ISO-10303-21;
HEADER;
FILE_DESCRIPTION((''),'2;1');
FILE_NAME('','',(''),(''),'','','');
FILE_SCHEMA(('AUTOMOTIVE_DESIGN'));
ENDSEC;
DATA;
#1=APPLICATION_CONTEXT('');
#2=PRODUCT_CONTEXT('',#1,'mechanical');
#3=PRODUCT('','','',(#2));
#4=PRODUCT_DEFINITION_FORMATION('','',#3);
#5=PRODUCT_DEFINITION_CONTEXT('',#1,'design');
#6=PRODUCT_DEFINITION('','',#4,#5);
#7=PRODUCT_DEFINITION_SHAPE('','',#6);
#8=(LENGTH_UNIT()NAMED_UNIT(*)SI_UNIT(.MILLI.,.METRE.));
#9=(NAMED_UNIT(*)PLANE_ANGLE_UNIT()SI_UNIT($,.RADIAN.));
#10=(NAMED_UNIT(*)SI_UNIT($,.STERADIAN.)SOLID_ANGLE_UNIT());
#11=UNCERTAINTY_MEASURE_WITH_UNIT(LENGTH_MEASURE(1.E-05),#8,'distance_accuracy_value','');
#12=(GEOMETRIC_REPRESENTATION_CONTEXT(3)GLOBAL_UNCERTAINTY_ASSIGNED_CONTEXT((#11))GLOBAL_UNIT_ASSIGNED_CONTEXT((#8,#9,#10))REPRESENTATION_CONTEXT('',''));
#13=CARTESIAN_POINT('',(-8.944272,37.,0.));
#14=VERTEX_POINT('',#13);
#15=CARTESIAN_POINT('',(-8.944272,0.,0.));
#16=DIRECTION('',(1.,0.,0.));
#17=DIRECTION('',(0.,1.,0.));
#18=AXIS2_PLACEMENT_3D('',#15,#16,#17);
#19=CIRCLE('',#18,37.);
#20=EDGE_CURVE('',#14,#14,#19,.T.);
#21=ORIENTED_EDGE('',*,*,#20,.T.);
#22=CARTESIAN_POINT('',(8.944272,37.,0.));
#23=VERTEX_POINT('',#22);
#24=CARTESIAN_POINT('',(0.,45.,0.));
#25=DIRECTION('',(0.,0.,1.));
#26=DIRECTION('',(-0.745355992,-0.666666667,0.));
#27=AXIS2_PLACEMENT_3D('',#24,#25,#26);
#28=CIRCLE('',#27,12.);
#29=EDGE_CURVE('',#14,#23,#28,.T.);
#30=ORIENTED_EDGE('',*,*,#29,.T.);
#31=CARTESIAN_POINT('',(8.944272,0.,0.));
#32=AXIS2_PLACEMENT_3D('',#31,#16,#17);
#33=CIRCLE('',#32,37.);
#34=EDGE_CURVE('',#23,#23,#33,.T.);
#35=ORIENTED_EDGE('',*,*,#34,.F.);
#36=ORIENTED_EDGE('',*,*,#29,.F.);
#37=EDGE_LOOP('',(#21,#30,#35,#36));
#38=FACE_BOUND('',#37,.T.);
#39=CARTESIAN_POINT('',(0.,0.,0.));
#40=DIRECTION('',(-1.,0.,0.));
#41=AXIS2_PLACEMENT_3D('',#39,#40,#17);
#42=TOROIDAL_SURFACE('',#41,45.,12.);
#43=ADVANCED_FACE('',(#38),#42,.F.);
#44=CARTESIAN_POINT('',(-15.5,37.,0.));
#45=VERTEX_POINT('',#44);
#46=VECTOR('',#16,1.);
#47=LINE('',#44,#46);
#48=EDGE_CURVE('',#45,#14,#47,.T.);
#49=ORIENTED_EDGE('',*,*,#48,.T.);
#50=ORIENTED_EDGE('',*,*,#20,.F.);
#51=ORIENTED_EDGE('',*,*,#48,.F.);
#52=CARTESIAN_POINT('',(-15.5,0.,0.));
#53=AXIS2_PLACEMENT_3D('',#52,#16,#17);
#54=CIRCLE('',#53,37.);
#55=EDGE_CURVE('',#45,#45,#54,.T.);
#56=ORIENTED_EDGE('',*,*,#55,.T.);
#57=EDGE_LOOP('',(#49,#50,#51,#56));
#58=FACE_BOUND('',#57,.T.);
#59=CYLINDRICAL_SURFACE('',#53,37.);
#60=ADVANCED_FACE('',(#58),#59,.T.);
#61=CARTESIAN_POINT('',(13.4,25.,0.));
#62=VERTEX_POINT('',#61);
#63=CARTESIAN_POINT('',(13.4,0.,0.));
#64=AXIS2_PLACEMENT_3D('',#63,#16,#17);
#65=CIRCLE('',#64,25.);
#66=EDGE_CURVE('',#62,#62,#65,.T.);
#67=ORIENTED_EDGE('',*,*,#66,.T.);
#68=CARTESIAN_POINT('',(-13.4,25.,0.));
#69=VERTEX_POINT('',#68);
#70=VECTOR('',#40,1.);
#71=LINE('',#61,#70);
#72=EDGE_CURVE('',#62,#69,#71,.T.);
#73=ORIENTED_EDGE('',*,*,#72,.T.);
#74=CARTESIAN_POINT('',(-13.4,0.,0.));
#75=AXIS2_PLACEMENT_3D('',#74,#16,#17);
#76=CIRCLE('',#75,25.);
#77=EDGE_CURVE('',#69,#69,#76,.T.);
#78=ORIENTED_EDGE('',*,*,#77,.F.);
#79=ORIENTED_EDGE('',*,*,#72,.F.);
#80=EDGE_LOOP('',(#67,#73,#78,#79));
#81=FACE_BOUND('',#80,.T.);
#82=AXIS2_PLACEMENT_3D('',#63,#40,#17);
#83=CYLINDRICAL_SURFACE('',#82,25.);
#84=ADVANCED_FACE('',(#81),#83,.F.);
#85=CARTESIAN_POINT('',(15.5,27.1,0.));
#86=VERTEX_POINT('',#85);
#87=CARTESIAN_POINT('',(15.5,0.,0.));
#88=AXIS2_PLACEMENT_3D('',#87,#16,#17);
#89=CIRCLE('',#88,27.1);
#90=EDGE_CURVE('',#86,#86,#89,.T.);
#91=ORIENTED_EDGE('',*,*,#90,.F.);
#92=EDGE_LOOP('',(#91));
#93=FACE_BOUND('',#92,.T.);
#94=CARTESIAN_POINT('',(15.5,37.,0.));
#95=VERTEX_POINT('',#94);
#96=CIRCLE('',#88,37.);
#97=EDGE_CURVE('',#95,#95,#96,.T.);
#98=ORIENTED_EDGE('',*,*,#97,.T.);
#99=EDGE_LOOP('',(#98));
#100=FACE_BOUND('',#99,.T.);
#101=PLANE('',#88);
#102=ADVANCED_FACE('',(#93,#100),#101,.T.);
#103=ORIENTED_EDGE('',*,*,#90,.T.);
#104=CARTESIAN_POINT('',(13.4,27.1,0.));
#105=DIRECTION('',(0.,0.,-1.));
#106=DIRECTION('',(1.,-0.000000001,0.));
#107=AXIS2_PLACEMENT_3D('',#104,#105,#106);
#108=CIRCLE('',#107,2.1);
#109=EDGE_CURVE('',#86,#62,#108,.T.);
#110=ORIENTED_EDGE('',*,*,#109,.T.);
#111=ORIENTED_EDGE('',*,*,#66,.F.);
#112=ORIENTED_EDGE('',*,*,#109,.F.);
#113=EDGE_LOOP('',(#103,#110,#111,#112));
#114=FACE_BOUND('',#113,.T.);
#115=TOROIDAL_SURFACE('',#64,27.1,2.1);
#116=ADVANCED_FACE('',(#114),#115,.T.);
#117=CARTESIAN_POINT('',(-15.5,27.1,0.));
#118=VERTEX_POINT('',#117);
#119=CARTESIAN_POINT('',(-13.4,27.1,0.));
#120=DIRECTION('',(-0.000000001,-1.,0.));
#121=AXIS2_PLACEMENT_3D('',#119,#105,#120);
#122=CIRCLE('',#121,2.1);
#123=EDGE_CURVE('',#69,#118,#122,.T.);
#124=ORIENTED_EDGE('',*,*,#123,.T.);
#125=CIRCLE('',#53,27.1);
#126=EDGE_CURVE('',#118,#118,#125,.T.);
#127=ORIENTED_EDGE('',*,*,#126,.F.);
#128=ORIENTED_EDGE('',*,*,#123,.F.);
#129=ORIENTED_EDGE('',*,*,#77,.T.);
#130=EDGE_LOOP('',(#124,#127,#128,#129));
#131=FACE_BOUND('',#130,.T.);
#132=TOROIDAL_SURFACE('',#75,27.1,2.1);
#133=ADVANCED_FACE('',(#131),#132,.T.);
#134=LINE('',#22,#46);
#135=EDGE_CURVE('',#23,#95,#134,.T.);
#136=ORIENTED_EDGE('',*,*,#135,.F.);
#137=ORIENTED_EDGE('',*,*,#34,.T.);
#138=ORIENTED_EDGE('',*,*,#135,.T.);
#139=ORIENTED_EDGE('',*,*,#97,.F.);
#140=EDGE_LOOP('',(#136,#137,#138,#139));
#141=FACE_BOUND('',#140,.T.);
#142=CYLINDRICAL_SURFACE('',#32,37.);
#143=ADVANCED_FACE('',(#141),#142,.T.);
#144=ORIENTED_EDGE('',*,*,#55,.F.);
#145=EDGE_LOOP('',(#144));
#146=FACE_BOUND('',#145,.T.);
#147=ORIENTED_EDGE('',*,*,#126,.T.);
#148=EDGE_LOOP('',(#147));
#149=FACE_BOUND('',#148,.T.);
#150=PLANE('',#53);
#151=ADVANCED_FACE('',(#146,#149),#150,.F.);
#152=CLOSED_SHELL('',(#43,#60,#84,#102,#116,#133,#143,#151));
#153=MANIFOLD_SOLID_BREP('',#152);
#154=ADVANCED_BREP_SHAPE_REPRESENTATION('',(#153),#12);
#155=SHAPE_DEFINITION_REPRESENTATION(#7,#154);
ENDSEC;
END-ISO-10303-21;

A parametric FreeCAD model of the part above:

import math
import FreeCAD as App
import Part
import Sketcher
from FreeCAD import Vector
Q = App.Units.Quantity

doc = App.newDocument("Part")
body = doc.addObject("PartDesign::Body", "Body")

# Sketch on XY plane
sketch1 = doc.addObject("Sketcher::SketchObject", "Sketch")
body.addObject(sketch1)
sketch1.AttachmentSupport = (doc.XY_Plane, [""])
sketch1.MapMode = "FlatFace"
sketch1.addGeometry([
    Part.LineSegment(Vector(-8.9, 37, 0), Vector(-15.5, 37, 0)),  # 0
    Part.LineSegment(Vector(-15.5, 37, 0), Vector(-15.5, 27.1, 0)),  # 1
    Part.ArcOfCircle(Part.Circle(Vector(-13.4, 27.1, 0), Vector(0, 0, 1), 2.1), math.radians(-180), math.radians(-90)),  # 2
    Part.LineSegment(Vector(-13.4, 25, 0), Vector(13.4, 25, 0)),  # 3
    Part.ArcOfCircle(Part.Circle(Vector(13.4, 27.1, 0), Vector(0, 0, 1), 2.1), math.radians(-90), math.radians(0)),  # 4
    Part.LineSegment(Vector(15.5, 27.1, 0), Vector(15.5, 37, 0)),  # 5
    Part.LineSegment(Vector(15.5, 37, 0), Vector(8.9, 37, 0)),  # 6
    Part.ArcOfCircle(Part.Circle(Vector(0, 45, 0), Vector(0, 0, 1), 12), math.radians(-138), math.radians(-42)),  # 7
], False)
sketch1.addConstraint([
    Sketcher.Constraint("Coincident", 0, 2, 1, 1),
    Sketcher.Constraint("Tangent", 1, 2, 2, 1),
    Sketcher.Constraint("Tangent", 2, 2, 3, 1),
    Sketcher.Constraint("Tangent", 3, 2, 4, 1),
    Sketcher.Constraint("Tangent", 4, 2, 5, 1),
    Sketcher.Constraint("Coincident", 5, 2, 6, 1),
    Sketcher.Constraint("Coincident", 6, 2, 7, 2),
    Sketcher.Constraint("Coincident", 7, 1, 0, 1),
    Sketcher.Constraint("Horizontal", 0),
    Sketcher.Constraint("Vertical", 1),
    Sketcher.Constraint("Horizontal", 3),
    Sketcher.Constraint("Vertical", 5),
    Sketcher.Constraint("Horizontal", 6),
    Sketcher.Constraint("Equal", 2, 4),
    Sketcher.Constraint("Symmetric", 0, 2, 5, 2, -2),
    Sketcher.Constraint("PointOnObject", 7, 3, -2),
    Sketcher.Constraint("Radius", 7, Q("12 mm")),
    Sketcher.Constraint("Radius", 2, Q("2.1 mm")),
    Sketcher.Constraint("DistanceX", 3, 1, 3, 2, Q("26.8 mm")),
    Sketcher.Constraint("DistanceY", 1, 2, 1, 1, Q("9.9 mm")),
    Sketcher.Constraint("DistanceY", -1, 1, 7, 3, Q("45 mm")),
    Sketcher.Constraint("DistanceY", -1, 1, 0, 2, Q("37 mm")),
])
revolution = doc.addObject("PartDesign::Revolution", "Revolution")
body.addObject(revolution)
revolution.Profile = sketch1
revolution.ReferenceAxis = (sketch1, ["H_Axis"])
revolution.Angle = 360

doc.recompute()
